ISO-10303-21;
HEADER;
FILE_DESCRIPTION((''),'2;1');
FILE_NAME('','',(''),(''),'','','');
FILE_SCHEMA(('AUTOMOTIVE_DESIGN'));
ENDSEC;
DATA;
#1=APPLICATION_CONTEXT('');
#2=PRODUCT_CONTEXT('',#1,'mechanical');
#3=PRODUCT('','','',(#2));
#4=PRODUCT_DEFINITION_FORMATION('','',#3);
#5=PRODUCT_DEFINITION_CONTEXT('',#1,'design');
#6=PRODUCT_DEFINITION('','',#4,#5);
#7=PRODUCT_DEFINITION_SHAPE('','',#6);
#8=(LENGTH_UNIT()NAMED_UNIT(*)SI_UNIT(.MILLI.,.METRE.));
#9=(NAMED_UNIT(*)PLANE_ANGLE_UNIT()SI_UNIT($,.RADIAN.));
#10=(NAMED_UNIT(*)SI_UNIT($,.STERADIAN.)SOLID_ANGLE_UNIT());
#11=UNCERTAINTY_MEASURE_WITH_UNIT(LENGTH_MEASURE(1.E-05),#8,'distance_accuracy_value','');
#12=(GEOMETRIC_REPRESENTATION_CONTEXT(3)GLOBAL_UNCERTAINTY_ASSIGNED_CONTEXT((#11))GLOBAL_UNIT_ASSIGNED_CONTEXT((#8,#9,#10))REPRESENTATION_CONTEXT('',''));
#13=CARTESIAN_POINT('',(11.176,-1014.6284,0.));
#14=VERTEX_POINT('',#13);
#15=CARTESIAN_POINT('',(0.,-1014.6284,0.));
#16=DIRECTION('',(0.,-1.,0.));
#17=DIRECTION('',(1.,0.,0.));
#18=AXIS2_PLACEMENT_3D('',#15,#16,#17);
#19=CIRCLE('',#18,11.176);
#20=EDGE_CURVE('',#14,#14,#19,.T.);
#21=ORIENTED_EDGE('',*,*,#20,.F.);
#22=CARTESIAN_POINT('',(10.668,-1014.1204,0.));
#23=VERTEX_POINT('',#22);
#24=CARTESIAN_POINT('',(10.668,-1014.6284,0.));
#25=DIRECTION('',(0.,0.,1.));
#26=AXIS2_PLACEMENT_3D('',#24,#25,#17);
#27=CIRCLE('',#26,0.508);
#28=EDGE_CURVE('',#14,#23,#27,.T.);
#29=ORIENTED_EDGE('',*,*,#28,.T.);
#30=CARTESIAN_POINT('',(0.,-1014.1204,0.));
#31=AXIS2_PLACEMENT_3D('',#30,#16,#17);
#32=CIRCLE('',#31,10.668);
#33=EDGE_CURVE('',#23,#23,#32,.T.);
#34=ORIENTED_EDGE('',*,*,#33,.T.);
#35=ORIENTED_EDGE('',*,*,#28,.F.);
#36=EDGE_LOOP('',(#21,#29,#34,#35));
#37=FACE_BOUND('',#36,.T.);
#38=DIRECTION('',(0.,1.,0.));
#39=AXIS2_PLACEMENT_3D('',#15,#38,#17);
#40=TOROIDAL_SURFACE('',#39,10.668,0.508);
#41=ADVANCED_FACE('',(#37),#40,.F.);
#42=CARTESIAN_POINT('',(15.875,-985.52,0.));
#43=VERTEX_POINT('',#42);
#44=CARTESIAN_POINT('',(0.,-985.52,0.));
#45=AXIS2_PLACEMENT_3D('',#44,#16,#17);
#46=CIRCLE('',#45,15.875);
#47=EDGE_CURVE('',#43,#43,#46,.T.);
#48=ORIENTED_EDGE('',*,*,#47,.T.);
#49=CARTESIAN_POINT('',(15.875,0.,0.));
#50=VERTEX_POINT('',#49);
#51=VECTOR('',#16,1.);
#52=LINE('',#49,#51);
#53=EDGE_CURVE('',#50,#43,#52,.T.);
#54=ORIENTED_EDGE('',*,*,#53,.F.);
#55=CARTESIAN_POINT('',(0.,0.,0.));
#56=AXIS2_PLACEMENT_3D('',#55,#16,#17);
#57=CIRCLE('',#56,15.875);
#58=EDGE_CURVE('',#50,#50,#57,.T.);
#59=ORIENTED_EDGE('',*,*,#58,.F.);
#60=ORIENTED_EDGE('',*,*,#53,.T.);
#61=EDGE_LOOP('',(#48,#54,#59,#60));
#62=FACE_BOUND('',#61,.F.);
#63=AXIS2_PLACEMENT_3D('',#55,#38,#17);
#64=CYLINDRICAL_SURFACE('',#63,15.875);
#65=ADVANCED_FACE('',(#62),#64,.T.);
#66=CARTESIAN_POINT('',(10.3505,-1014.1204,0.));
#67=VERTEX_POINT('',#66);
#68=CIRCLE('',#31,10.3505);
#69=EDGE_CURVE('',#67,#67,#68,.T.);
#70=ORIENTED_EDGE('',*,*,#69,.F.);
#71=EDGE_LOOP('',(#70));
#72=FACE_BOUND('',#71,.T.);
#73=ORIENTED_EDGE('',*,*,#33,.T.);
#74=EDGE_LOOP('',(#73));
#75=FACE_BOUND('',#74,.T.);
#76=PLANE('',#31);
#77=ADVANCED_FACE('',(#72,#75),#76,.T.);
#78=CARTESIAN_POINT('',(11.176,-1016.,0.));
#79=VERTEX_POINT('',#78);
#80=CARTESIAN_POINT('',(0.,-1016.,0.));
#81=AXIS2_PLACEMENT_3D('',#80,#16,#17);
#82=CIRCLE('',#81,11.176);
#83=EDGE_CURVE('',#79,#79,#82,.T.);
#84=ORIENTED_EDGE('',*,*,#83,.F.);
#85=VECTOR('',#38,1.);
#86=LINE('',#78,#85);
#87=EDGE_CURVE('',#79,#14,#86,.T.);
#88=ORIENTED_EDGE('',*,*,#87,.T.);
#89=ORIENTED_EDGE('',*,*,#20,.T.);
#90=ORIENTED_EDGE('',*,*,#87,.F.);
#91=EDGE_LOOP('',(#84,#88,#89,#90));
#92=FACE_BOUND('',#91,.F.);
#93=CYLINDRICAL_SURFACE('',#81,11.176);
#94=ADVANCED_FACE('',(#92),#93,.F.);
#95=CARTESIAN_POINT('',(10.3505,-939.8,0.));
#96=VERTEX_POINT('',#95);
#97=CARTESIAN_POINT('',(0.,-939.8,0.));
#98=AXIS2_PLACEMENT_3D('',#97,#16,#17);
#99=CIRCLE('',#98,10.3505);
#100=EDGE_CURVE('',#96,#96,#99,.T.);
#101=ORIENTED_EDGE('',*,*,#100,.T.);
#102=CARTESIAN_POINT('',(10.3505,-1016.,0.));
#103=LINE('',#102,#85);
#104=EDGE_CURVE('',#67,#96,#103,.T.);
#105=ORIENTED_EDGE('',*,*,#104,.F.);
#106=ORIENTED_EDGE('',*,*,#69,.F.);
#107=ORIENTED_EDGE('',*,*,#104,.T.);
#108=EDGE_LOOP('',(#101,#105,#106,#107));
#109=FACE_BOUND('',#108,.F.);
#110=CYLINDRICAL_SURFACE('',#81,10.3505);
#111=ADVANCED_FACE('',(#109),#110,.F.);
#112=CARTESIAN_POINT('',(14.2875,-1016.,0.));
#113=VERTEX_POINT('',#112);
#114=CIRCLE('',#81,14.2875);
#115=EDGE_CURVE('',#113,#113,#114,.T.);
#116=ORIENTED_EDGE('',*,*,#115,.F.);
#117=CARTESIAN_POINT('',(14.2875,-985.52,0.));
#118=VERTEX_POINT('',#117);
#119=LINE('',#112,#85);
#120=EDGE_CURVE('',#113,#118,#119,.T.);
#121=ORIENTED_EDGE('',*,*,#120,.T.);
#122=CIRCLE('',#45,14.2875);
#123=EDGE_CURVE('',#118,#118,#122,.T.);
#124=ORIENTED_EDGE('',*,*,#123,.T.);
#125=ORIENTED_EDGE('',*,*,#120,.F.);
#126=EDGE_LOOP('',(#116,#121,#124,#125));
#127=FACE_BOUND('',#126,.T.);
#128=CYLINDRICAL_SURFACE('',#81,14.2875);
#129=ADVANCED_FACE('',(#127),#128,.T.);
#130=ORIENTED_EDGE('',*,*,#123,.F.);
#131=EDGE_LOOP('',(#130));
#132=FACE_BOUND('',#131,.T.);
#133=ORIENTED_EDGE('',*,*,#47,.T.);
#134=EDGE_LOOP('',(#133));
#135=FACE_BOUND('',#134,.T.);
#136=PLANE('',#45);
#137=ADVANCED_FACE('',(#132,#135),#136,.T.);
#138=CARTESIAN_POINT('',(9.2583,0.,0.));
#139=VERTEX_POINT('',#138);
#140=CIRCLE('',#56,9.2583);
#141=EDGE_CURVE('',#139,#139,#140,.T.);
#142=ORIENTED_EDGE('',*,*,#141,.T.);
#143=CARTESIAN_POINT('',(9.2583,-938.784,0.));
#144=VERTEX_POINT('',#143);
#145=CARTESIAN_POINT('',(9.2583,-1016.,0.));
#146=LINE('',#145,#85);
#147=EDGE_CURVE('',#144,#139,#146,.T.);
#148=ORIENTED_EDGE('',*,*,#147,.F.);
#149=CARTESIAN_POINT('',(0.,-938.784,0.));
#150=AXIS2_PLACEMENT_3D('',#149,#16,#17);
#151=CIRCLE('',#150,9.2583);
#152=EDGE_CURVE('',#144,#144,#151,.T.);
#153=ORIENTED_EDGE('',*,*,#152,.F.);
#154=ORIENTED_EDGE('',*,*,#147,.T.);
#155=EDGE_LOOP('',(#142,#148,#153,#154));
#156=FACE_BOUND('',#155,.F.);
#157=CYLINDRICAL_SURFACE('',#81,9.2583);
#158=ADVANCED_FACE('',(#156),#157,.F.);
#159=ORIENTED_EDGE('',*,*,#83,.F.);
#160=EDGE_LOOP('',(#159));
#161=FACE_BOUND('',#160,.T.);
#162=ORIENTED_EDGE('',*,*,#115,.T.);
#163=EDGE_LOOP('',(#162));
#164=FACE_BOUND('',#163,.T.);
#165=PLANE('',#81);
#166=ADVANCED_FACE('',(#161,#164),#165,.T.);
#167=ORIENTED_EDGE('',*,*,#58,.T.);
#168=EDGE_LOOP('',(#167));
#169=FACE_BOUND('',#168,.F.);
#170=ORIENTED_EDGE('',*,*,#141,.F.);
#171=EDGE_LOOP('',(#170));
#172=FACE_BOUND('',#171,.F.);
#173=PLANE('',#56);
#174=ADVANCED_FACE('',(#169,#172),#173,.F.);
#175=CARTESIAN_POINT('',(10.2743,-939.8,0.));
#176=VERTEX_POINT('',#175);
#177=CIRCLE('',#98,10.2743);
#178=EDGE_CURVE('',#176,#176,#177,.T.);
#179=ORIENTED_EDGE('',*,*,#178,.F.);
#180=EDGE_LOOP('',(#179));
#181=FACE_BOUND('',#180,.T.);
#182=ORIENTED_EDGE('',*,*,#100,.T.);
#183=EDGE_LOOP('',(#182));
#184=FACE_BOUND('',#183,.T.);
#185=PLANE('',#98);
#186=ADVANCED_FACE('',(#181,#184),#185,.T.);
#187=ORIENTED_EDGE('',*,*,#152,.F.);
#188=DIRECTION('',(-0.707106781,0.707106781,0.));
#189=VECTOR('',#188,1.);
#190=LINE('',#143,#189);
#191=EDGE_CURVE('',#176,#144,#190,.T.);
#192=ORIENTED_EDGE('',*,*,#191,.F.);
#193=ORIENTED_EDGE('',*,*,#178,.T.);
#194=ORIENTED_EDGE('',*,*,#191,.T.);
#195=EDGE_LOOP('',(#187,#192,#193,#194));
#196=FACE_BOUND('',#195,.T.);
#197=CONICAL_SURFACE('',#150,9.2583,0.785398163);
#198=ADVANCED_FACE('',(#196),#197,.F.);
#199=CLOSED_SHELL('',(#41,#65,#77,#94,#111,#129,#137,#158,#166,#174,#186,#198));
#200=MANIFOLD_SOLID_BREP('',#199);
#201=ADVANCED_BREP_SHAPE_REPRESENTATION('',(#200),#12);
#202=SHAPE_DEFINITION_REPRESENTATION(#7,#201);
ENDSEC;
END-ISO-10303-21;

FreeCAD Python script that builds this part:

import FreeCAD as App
import Part
import Sketcher
from FreeCAD import Vector
Q = App.Units.Quantity


def edges_at(feature, points):
    """Names of the edges that pass closest to the given points."""
    edges = feature.Shape.Edges
    near = lambda p: min(range(len(edges)), key=lambda i: edges[i].distToShape(Part.Vertex(*p))[0])
    return sorted({f"Edge{near(p) + 1}" for p in points})

doc = App.newDocument("Part")
body = doc.addObject("PartDesign::Body", "Body")

sketch1 = body.newObject("Sketcher::SketchObject", "Sketch")
sketch1.AttachmentSupport = (doc.getObject("XZ_Plane"), [""])
sketch1.MapMode = "FlatFace"
sketch1.addGeometry(Part.Circle(Vector(0, 0, 0), Vector(0, 0, 1), 15.875), False)
sketch1.addConstraint(Sketcher.Constraint("Coincident", 0, 3, -1, 1))
sketch1.addConstraint(Sketcher.Constraint("Diameter", 0, Q("1.25 in")))
pad1 = body.newObject("PartDesign::Pad", "Pad")
pad1.Profile = sketch1
pad1.Length = Q("40 in")

sketch2 = body.newObject("Sketcher::SketchObject", "Sketch001")
sketch2.AttachmentSupport = (doc.getObject("XZ_Plane"), [""])
sketch2.MapMode = "FlatFace"
sketch2.AttachmentOffset = App.Placement(Vector(0, 0, 40 * 25.4), App.Rotation())
sketch2.addGeometry(Part.Circle(Vector(0, 0, 0), Vector(0, 0, 1), 11.176), False)
sketch2.addConstraint(Sketcher.Constraint("Coincident", 0, 3, -1, 1))
sketch2.addConstraint(Sketcher.Constraint("Diameter", 0, Q("0.88 in")))
pocket1 = body.newObject("PartDesign::Pocket", "Pocket")
pocket1.Profile = sketch2
pocket1.Length = Q("0.074 in")

sketch3 = body.newObject("Sketcher::SketchObject", "Sketch002")
sketch3.AttachmentSupport = (doc.getObject("XZ_Plane"), [""])
sketch3.MapMode = "FlatFace"
sketch3.AttachmentOffset = App.Placement(Vector(0, 0, 40 * 25.4), App.Rotation())
sketch3.addGeometry(Part.Circle(Vector(0, 0, 0), Vector(0, 0, 1), 10.3505), False)
sketch3.addConstraint(Sketcher.Constraint("Coincident", 0, 3, -1, 1))
sketch3.addConstraint(Sketcher.Constraint("Diameter", 0, Q("0.815 in")))
pocket2 = body.newObject("PartDesign::Pocket", "Pocket001")
pocket2.Profile = sketch3
pocket2.Length = Q("3 in")

sketch4 = body.newObject("Sketcher::SketchObject", "Sketch003")
sketch4.AttachmentSupport = (doc.getObject("XZ_Plane"), [""])
sketch4.MapMode = "FlatFace"
sketch4.AttachmentOffset = App.Placement(Vector(0, 0, 40 * 25.4), App.Rotation())
sketch4.addGeometry(Part.Circle(Vector(0, 0, 0), Vector(0, 0, 1), 9.2583), False)
sketch4.addConstraint(Sketcher.Constraint("Coincident", 0, 3, -1, 1))
sketch4.addConstraint(Sketcher.Constraint("Diameter", 0, Q("0.729 in")))
pocket3 = body.newObject("PartDesign::Pocket", "Pocket002")
pocket3.Profile = sketch4
pocket3.Type = "ThroughAll"
doc.recompute()

fillet = body.newObject("PartDesign::Fillet", "Fillet")
fillet.Base = (pocket3, edges_at(pocket3, [(-11.176, -1014.12, 0)]))
fillet.Radius = Q("0.02 in")

sketch5 = body.newObject("Sketcher::SketchObject", "Sketch004")
sketch5.AttachmentSupport = (doc.getObject("XZ_Plane"), [""])
sketch5.MapMode = "FlatFace"
sketch5.AttachmentOffset = App.Placement(Vector(0, 0, 40 * 25.4), App.Rotation())
sketch5.addGeometry(Part.Circle(Vector(0, 0, 0), Vector(0, 0, 1), 15.875), False)
sketch5.addGeometry(Part.Circle(Vector(0, 0, 0), Vector(0, 0, 1), 14.2875), False)
sketch5.addConstraint(Sketcher.Constraint("Coincident", 0, 3, -1, 1))
sketch5.addConstraint(Sketcher.Constraint("Coincident", 1, 3, -1, 1))
sketch5.addConstraint(Sketcher.Constraint("Diameter", 0, Q("1.25 in")))
sketch5.addConstraint(Sketcher.Constraint("Diameter", 1, Q("1.125 in")))
pocket4 = body.newObject("PartDesign::Pocket", "Pocket003")
pocket4.Profile = sketch5
pocket4.Length = Q("1.2 in")
doc.recompute()

chamfer = body.newObject("PartDesign::Chamfer", "Chamfer")
chamfer.Base = (pocket4, edges_at(pocket4, [(-9.258, -939.8, 0)]))
chamfer.Size = Q("0.04 in")

doc.recompute()
